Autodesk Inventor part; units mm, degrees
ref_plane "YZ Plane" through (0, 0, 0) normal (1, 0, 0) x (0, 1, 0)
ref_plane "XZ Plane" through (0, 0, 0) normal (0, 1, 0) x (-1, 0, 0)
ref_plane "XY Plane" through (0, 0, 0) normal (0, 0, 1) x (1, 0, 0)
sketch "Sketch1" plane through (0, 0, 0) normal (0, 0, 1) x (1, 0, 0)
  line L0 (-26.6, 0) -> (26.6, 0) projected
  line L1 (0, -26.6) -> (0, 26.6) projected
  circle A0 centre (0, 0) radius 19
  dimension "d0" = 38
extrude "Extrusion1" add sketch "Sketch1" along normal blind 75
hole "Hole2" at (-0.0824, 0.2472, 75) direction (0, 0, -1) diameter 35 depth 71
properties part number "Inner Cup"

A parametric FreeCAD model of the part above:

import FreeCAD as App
import Part
import Sketcher

doc = App.newDocument("Part")
body = doc.addObject("PartDesign::Body", "Body")

# Sketch on XY plane
sketch1 = body.newObject("Sketcher::SketchObject", "Sketch")
sketch1.AttachmentSupport = (doc.getObject("XY_Plane"), [""])
sketch1.MapMode = "FlatFace"
sketch1.addGeometry(Part.Circle(App.Vector(0, 0, 0), App.Vector(0, 0, 1), 19), False)
sketch1.addConstraint([
    Sketcher.Constraint("Coincident", 0, 3, -1, 1),
    Sketcher.Constraint("Diameter", 0, 38.0),
])
pad1 = body.newObject("PartDesign::Pad", "Pad")
pad1.Profile = sketch1
pad1.Length = 75

# Sketch on XY plane
sketch2 = body.newObject("Sketcher::SketchObject", "Sketch001")
sketch2.AttachmentSupport = (doc.getObject("XY_Plane"), [""])
sketch2.MapMode = "FlatFace"
sketch2.AttachmentOffset = App.Placement(App.Vector(0, 0, 75), App.Rotation())
sketch2.addGeometry(Part.Circle(App.Vector(-0.0824, 0.2472, 0), App.Vector(0, 0, 1), 17.5), False)
sketch2.addConstraint([
    Sketcher.Constraint("Diameter", 0, 35.0),
    Sketcher.Constraint("DistanceX", 0, 3, -1, 1, 0.0824),
    Sketcher.Constraint("DistanceY", -1, 1, 0, 3, 0.2472),
])
doc.recompute()
hole = body.newObject("PartDesign::Hole", "Hole")
hole.Profile = sketch2
hole.ThreadType = "None"
hole.Diameter = 35
hole.DepthType = "Dimension"
hole.Depth = 71
hole.DrillPoint = "Flat"

doc.recompute()
